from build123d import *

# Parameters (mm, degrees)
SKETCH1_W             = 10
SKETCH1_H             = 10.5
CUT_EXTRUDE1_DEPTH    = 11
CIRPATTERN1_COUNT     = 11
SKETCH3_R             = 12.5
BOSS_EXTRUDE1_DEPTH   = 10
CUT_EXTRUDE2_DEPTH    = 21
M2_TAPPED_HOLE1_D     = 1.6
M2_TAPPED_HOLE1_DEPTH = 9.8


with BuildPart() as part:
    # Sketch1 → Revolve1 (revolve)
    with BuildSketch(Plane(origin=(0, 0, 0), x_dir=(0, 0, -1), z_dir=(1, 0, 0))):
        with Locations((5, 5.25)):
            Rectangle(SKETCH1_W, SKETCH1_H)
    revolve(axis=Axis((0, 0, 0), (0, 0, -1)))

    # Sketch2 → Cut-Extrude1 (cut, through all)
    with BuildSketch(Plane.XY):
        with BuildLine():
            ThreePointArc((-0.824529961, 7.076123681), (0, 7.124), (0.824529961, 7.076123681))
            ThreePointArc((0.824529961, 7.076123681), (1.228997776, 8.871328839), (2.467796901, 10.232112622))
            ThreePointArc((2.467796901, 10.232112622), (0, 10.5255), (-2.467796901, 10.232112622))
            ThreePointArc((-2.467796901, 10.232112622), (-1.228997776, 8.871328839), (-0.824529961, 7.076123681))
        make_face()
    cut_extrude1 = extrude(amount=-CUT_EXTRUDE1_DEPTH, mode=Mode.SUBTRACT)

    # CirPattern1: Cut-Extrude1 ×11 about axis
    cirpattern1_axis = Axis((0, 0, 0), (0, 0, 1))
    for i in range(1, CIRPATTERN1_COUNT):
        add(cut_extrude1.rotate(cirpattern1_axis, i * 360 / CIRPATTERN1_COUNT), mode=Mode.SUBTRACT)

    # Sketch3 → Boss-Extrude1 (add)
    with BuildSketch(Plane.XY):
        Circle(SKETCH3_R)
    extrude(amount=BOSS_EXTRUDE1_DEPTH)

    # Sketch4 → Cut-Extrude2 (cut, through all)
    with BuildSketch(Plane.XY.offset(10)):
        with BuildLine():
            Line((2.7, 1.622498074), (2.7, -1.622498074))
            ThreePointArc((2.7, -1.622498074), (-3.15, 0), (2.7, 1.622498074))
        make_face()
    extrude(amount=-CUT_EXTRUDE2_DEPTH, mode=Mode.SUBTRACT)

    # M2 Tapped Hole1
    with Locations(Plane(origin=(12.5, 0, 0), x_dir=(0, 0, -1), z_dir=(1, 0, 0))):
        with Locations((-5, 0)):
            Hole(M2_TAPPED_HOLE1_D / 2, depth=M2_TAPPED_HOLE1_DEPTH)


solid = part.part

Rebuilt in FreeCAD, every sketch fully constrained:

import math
import FreeCAD as App
import Part
import Sketcher


def add_polygon(sketch, points):
    """Adds a closed chain of lines whose ends are joined by coincident constraints."""
    first, n = sketch.GeometryCount, len(points)
    for a, b in zip(points, points[1:] + points[:1]):
        sketch.addGeometry(Part.LineSegment(App.Vector(*a, 0), App.Vector(*b, 0)), False)
    for i in range(n):
        sketch.addConstraint(Sketcher.Constraint("Coincident", first + i, 2, first + (i + 1) % n, 1))

doc = App.newDocument("Part")
body = doc.addObject("PartDesign::Body", "Body")

# Sketch on YZ plane
sketch1 = body.newObject("Sketcher::SketchObject", "Sketch")
sketch1.AttachmentSupport = (doc.getObject("YZ_Plane"), [""])
sketch1.MapMode = "FlatFace"
add_polygon(sketch1, [(10, 0), (0, 0), (0, -10), (10, -10)])  # lines 0-3
sketch1.addConstraint(Sketcher.Constraint("Horizontal", 0))
sketch1.addConstraint(Sketcher.Constraint("Vertical", 1))
sketch1.addConstraint(Sketcher.Constraint("Horizontal", 2))
sketch1.addConstraint(Sketcher.Constraint("Vertical", 3))
sketch1.addConstraint(Sketcher.Constraint("Coincident", 0, 2, -1, 1))
sketch1.addConstraint(Sketcher.Constraint("DistanceY", 1, 2, 1, 1, 10.0))
sketch1.addConstraint(Sketcher.Constraint("DistanceX", 0, 2, 0, 1, 10.5))
revolution = body.newObject("PartDesign::Revolution", "Revolution")
revolution.Profile = sketch1
revolution.ReferenceAxis = (sketch1, ["V_Axis"])
revolution.Angle = 360

# Sketch on XY plane
sketch2 = body.newObject("Sketcher::SketchObject", "Sketch001")
sketch2.AttachmentSupport = (doc.getObject("XY_Plane"), [""])
sketch2.MapMode = "FlatFace"
sketch2.addGeometry(Part.ArcOfCircle(Part.Circle(App.Vector(0, 0, 0), App.Vector(0, 0, 1), 7.1), math.radians(83.35), math.radians(96.65)), False)
sketch2.addGeometry(Part.ArcOfCircle(Part.Circle(App.Vector(4.4, 7.2, 0), App.Vector(0, 0, 1), 3.6), math.radians(123), math.radians(182)), False)
sketch2.addGeometry(Part.ArcOfCircle(Part.Circle(App.Vector(0, 0, 0), App.Vector(0, 0, 1), 10.5), math.radians(76), math.radians(104)), False)
sketch2.addGeometry(Part.ArcOfCircle(Part.Circle(App.Vector(-4.4, 7.2, 0), App.Vector(0, 0, 1), 3.6), math.radians(-2), math.radians(57)), False)
sketch2.addConstraint(Sketcher.Constraint("Coincident", 0, 1, 1, 2))
sketch2.addConstraint(Sketcher.Constraint("Coincident", 1, 1, 2, 1))
sketch2.addConstraint(Sketcher.Constraint("Coincident", 2, 2, 3, 2))
sketch2.addConstraint(Sketcher.Constraint("Coincident", 3, 1, 0, 2))
sketch2.addConstraint(Sketcher.Constraint("Coincident", 0, 3, -1, 1))
sketch2.addConstraint(Sketcher.Constraint("Coincident", 2, 3, -1, 1))
sketch2.addConstraint(Sketcher.Constraint("Equal", 1, 3))
sketch2.addConstraint(Sketcher.Constraint("Symmetric", 1, 3, 3, 3, -2))
sketch2.addConstraint(Sketcher.Constraint("Radius", 1, 3.6))
sketch2.addConstraint(Sketcher.Constraint("Radius", 0, 7.124))
sketch2.addConstraint(Sketcher.Constraint("Radius", 2, 10.5255))
sketch2.addConstraint(Sketcher.Constraint("DistanceX", -1, 1, 0, 1, 0.82453))
sketch2.addConstraint(Sketcher.Constraint("DistanceY", 0, 1, 1, 3, 0.132621))
pocket1 = body.newObject("PartDesign::Pocket", "Pocket")
pocket1.Profile = sketch2
pocket1.Type = "ThroughAll"
doc.recompute()

polarpattern = body.newObject("PartDesign::PolarPattern", "PolarPattern")
polarpattern.Originals = [pocket1]
polarpattern.Axis = (doc.getObject("Z_Axis"), [""])
polarpattern.Angle = 360
polarpattern.Occurrences = 11
body.Tip = polarpattern

# Sketch on XY plane
sketch3 = body.newObject("Sketcher::SketchObject", "Sketch002")
sketch3.AttachmentSupport = (doc.getObject("XY_Plane"), [""])
sketch3.MapMode = "FlatFace"
sketch3.addGeometry(Part.Circle(App.Vector(0, 0, 0), App.Vector(0, 0, 1), 12), False)
sketch3.addConstraint(Sketcher.Constraint("Coincident", 0, 3, -1, 1))
sketch3.addConstraint(Sketcher.Constraint("Diameter", 0, 25.0))
pad1 = body.newObject("PartDesign::Pad", "Pad")
pad1.Profile = sketch3
pad1.Length = 10

# Sketch on XY plane
sketch4 = body.newObject("Sketcher::SketchObject", "Sketch003")
sketch4.AttachmentSupport = (doc.getObject("XY_Plane"), [""])
sketch4.MapMode = "FlatFace"
sketch4.AttachmentOffset = App.Placement(App.Vector(0, 0, 10), App.Rotation())
sketch4.addGeometry(Part.LineSegment(App.Vector(2.7, -1.6, 0), App.Vector(2.7, 1.6, 0)), False)
sketch4.addGeometry(Part.ArcOfCircle(Part.Circle(App.Vector(0, 0, 0), App.Vector(0, 0, 1), 3.1), math.radians(31), math.radians(329)), False)
sketch4.addConstraint(Sketcher.Constraint("Coincident", 0, 1, 1, 2))
sketch4.addConstraint(Sketcher.Constraint("Coincident", 1, 1, 0, 2))
sketch4.addConstraint(Sketcher.Constraint("Vertical", 0))
sketch4.addConstraint(Sketcher.Constraint("Coincident", 1, 3, -1, 1))
sketch4.addConstraint(Sketcher.Constraint("Radius", 1, 3.15))
sketch4.addConstraint(Sketcher.Constraint("DistanceX", -1, 1, 0, 1, 2.7))
pocket2 = body.newObject("PartDesign::Pocket", "Pocket001")
pocket2.Profile = sketch4
pocket2.Type = "ThroughAll"

# Sketch on YZ plane
sketch5 = body.newObject("Sketcher::SketchObject", "Sketch004")
sketch5.AttachmentSupport = (doc.getObject("YZ_Plane"), [""])
sketch5.MapMode = "FlatFace"
sketch5.AttachmentOffset = App.Placement(App.Vector(0, 0, 12.5), App.Rotation())
sketch5.addGeometry(Part.Circle(App.Vector(0, 5, 0), App.Vector(0, 0, 1), 0.8), False)
sketch5.addConstraint(Sketcher.Constraint("PointOnObject", 0, 3, -2))
sketch5.addConstraint(Sketcher.Constraint("Diameter", 0, 1.6))
sketch5.addConstraint(Sketcher.Constraint("DistanceY", -1, 1, 0, 3, 5.0))
doc.recompute()
hole = body.newObject("PartDesign::Hole", "Hole")
hole.Profile = sketch5
hole.ThreadType = "None"
hole.Diameter = 1.6
hole.DepthType = "Dimension"
hole.Depth = 9.8
hole.DrillPoint = "Flat"

doc.recompute()
